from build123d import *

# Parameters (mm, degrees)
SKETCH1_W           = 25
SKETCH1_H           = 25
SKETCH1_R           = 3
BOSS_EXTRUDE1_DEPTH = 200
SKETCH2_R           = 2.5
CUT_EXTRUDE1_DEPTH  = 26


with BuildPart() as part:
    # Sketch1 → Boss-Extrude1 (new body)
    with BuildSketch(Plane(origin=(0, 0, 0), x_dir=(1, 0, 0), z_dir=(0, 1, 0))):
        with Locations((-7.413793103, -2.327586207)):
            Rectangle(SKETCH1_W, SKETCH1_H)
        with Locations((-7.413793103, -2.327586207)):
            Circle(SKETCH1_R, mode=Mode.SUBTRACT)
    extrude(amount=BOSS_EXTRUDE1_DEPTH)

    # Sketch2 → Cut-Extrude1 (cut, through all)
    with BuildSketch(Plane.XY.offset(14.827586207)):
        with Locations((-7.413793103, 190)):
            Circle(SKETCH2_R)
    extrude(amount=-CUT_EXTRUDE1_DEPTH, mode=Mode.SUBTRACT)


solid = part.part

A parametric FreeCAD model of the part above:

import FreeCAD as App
import Part
import Sketcher


def add_polygon(sketch, points):
    """Adds a closed chain of lines whose ends are joined by coincident constraints."""
    first, n = sketch.GeometryCount, len(points)
    for a, b in zip(points, points[1:] + points[:1]):
        sketch.addGeometry(Part.LineSegment(App.Vector(*a, 0), App.Vector(*b, 0)), False)
    for i in range(n):
        sketch.addConstraint(Sketcher.Constraint("Coincident", first + i, 2, first + (i + 1) % n, 1))

doc = App.newDocument("Part")
body = doc.addObject("PartDesign::Body", "Body")

sketch1 = body.newObject("Sketcher::SketchObject", "Sketch")
sketch1.AttachmentSupport = (doc.getObject("XZ_Plane"), [""])
sketch1.MapMode = "FlatFace"
add_polygon(sketch1, [(-19.9, -10.2), (-19.9, 14.8), (5.1, 14.8), (5.1, -10.2)])
sketch1.addGeometry(Part.Circle(App.Vector(-7.4, 2.3, 0), App.Vector(0, 0, 1), 3), False)
sketch1.addConstraint(Sketcher.Constraint("Vertical", 0))
sketch1.addConstraint(Sketcher.Constraint("Horizontal", 1))
sketch1.addConstraint(Sketcher.Constraint("Vertical", 2))
sketch1.addConstraint(Sketcher.Constraint("Horizontal", 3))
sketch1.addConstraint(Sketcher.Constraint("Equal", 3, 0))
sketch1.addConstraint(Sketcher.Constraint("Diameter", 4, 6.0))
sketch1.addConstraint(Sketcher.Constraint("DistanceX", 1, 1, 1, 2, 25.0))
sketch1.addConstraint(Sketcher.Constraint("DistanceX", 0, 2, 4, 3, 12.5))
sketch1.addConstraint(Sketcher.Constraint("DistanceY", 4, 3, 0, 2, 12.5))
sketch1.addConstraint(Sketcher.Constraint("DistanceX", 4, 3, -1, 1, 7.413793))
sketch1.addConstraint(Sketcher.Constraint("DistanceY", -1, 1, 4, 3, 2.327586))
pad1 = body.newObject("PartDesign::Pad", "Pad")
pad1.Profile = sketch1
pad1.Length = 200
pad1.Reversed = True

sketch2 = body.newObject("Sketcher::SketchObject", "Sketch001")
sketch2.AttachmentSupport = (doc.getObject("XY_Plane"), [""])
sketch2.MapMode = "FlatFace"
sketch2.AttachmentOffset = App.Placement(App.Vector(0, 0, 14.827586), App.Rotation())
sketch2.addGeometry(Part.Circle(App.Vector(-7.4, 190, 0), App.Vector(0, 0, 1), 2.5), False)
sketch2.addConstraint(Sketcher.Constraint("Diameter", 0, 5.0))
sketch2.addConstraint(Sketcher.Constraint("DistanceY", -1, 1, 0, 3, 190.0))
sketch2.addConstraint(Sketcher.Constraint("DistanceX", 0, 3, -1, 1, 7.413793))
pocket1 = body.newObject("PartDesign::Pocket", "Pocket")
pocket1.Profile = sketch2
pocket1.Type = "ThroughAll"

doc.recompute()
